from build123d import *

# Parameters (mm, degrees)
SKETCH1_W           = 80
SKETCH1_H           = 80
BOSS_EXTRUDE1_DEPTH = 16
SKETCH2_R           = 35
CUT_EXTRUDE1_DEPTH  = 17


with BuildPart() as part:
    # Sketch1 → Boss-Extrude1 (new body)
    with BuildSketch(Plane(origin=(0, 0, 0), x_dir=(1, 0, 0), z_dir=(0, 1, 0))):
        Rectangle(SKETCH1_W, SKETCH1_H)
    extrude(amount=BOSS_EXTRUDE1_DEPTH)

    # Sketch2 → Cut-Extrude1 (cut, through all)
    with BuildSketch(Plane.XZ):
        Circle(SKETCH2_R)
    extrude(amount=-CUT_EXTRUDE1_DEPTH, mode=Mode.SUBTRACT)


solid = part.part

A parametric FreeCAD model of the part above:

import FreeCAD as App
import Part
import Sketcher

V = App.Vector
Q = App.Units.Quantity

doc = App.newDocument("Part")
body = doc.addObject("PartDesign::Body", "Body")

sketch1 = body.newObject("Sketcher::SketchObject", "Sketch")
sketch1.AttachmentSupport = (doc.getObject("XZ_Plane"), [""])
sketch1.MapMode = "FlatFace"
sketch1.addGeometry([
    Part.LineSegment(V(-40, -40, 0), V(-40, 40, 0)),
    Part.LineSegment(V(-40, 40, 0), V(40, 40, 0)),
    Part.LineSegment(V(40, 40, 0), V(40, -40, 0)),
    Part.LineSegment(V(40, -40, 0), V(-40, -40, 0)),
], False)
sketch1.addConstraint([
    Sketcher.Constraint("Coincident", 0, 2, 1, 1),
    Sketcher.Constraint("Coincident", 1, 2, 2, 1),
    Sketcher.Constraint("Coincident", 2, 2, 3, 1),
    Sketcher.Constraint("Coincident", 3, 2, 0, 1),
    Sketcher.Constraint("Vertical", 0),
    Sketcher.Constraint("Horizontal", 1),
    Sketcher.Constraint("Vertical", 2),
    Sketcher.Constraint("Horizontal", 3),
    Sketcher.Constraint("Symmetric", 0, 2, 2, 2, -1, 1),
    Sketcher.Constraint("Equal", 3, 0),
    Sketcher.Constraint("DistanceX", 1, 1, 1, 2, Q("80 mm")),
])
pad1 = body.newObject("PartDesign::Pad", "Pad")
pad1.Profile = sketch1
pad1.Length = 16
pad1.Reversed = True

sketch2 = body.newObject("Sketcher::SketchObject", "Sketch001")
sketch2.AttachmentSupport = (doc.getObject("XZ_Plane"), [""])
sketch2.MapMode = "FlatFace"
sketch2.addGeometry(Part.Circle(V(0, 0, 0), V(0, 0, 1), 35), False)
sketch2.addConstraint([
    Sketcher.Constraint("Coincident", 0, 3, -1, 1),
    Sketcher.Constraint("Diameter", 0, Q("70 mm")),
])
pocket1 = body.newObject("PartDesign::Pocket", "Pocket")
pocket1.Profile = sketch2
pocket1.Type = "ThroughAll"

doc.recompute()
